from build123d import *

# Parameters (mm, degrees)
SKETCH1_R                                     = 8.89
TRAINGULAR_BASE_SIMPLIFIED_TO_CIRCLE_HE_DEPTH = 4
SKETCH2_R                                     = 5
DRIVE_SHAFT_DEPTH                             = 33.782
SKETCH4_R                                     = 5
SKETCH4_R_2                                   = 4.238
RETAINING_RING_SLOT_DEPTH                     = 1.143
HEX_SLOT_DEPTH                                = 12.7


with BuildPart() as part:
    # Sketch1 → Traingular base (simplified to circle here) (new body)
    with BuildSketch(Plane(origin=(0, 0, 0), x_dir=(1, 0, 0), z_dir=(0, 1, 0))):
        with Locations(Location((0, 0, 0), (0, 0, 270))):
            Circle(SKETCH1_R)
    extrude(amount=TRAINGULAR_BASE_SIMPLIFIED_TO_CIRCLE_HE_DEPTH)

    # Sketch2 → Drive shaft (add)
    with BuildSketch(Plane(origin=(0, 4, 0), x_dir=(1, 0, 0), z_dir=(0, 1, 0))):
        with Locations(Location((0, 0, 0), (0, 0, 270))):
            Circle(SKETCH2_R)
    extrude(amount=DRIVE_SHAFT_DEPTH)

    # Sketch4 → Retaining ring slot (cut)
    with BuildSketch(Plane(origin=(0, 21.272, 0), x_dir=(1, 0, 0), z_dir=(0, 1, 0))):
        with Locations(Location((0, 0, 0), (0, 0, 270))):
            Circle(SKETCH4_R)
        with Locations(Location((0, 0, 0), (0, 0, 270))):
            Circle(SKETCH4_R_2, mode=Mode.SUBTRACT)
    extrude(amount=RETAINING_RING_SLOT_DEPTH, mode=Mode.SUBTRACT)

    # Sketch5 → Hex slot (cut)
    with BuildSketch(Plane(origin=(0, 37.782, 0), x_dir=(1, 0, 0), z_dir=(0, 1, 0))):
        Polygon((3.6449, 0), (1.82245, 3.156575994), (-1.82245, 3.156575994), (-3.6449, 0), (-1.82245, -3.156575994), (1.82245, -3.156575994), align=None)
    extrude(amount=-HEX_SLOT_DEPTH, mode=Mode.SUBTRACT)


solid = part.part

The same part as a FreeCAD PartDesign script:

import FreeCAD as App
import Part
import Sketcher
Q = App.Units.Quantity

doc = App.newDocument("Part")
params = doc.addObject("Spreadsheet::Sheet", "Params")
for row, (alias, value) in enumerate([
    ("sketch1_diameter", "0.7 in"),
    ("pad1_length", "4 mm"),
    ("pad2_length", "1.33 in"),
    ("pocket1_length", "0.045 in"),
    ("pocket2_length", "0.5 in"),
], start=1):
    params.set(f"A{row}", alias)
    params.set(f"B{row}", "=" + value)
    params.setAlias(f"B{row}", alias)

body = doc.addObject("PartDesign::Body", "Body")

sketch1 = doc.addObject("Sketcher::SketchObject", "Sketch")
body.addObject(sketch1)
sketch1.AttachmentSupport = (doc.XZ_Plane, [""])
sketch1.MapMode = "FlatFace"
sketch1.addGeometry(Part.Circle(App.Vector(0, 0, 0), App.Vector(0, 0, 1), 9), False)
sketch1.addConstraint([
    Sketcher.Constraint("Coincident", 0, 3, -1, 1),
    Sketcher.Constraint("Diameter", 0, Q("0.7 in")),
])
sketch1.setExpression("Constraints[1]", "Params.sketch1_diameter")
pad1 = doc.addObject("PartDesign::Pad", "Pad")
body.addObject(pad1)
pad1.Profile = sketch1
pad1.setExpression("Length", "Params.pad1_length")
pad1.Reversed = True

sketch2 = doc.addObject("Sketcher::SketchObject", "Sketch001")
body.addObject(sketch2)
sketch2.AttachmentSupport = (doc.XZ_Plane, [""])
sketch2.MapMode = "FlatFace"
sketch2.AttachmentOffset = App.Placement(App.Vector(0, 0, -4), App.Rotation())
sketch2.addGeometry(Part.Circle(App.Vector(0, 0, 0), App.Vector(0, 0, 1), 5), False)
sketch2.addConstraint([
    Sketcher.Constraint("Coincident", 0, 3, -1, 1),
    Sketcher.Constraint("Diameter", 0, 10.0),
])
pad2 = doc.addObject("PartDesign::Pad", "Pad001")
body.addObject(pad2)
pad2.Profile = sketch2
pad2.setExpression("Length", "Params.pad2_length")
pad2.Reversed = True

sketch3 = doc.addObject("Sketcher::SketchObject", "Sketch002")
body.addObject(sketch3)
sketch3.AttachmentSupport = (doc.XZ_Plane, [""])
sketch3.MapMode = "FlatFace"
sketch3.AttachmentOffset = App.Placement(App.Vector(0, 0, -21.272), App.Rotation())
sketch3.addGeometry([
    Part.Circle(App.Vector(0, 0, 0), App.Vector(0, 0, 1), 5),
    Part.Circle(App.Vector(0, 0, 0), App.Vector(0, 0, 1), 4.2),
], False)
sketch3.addConstraint([
    Sketcher.Constraint("Coincident", 0, 3, -1, 1),
    Sketcher.Constraint("Coincident", 1, 3, -1, 1),
    Sketcher.Constraint("Diameter", 0, 10.0),
    Sketcher.Constraint("Diameter", 1, 8.476),
])
pocket1 = doc.addObject("PartDesign::Pocket", "Pocket")
body.addObject(pocket1)
pocket1.Profile = sketch3
pocket1.setExpression("Length", "Params.pocket1_length")

sketch4 = doc.addObject("Sketcher::SketchObject", "Sketch003")
body.addObject(sketch4)
sketch4.AttachmentSupport = (doc.XZ_Plane, [""])
sketch4.MapMode = "FlatFace"
sketch4.AttachmentOffset = App.Placement(App.Vector(0, 0, -37.782), App.Rotation())
sketch4.addGeometry([
    Part.LineSegment(App.Vector(3.6, 0, 0), App.Vector(1.8, -3.2, 0)),
    Part.LineSegment(App.Vector(1.8, -3.2, 0), App.Vector(-1.8, -3.2, 0)),
    Part.LineSegment(App.Vector(-1.8, -3.2, 0), App.Vector(-3.6, 0, 0)),
    Part.LineSegment(App.Vector(-3.6, 0, 0), App.Vector(-1.8, 3.2, 0)),
    Part.LineSegment(App.Vector(-1.8, 3.2, 0), App.Vector(1.8, 3.2, 0)),
    Part.LineSegment(App.Vector(1.8, 3.2, 0), App.Vector(3.6, 0, 0)),
], False)
sketch4.addConstraint([
    Sketcher.Constraint("Coincident", 0, 2, 1, 1),
    Sketcher.Constraint("Coincident", 1, 2, 2, 1),
    Sketcher.Constraint("Coincident", 2, 2, 3, 1),
    Sketcher.Constraint("Coincident", 3, 2, 4, 1),
    Sketcher.Constraint("Coincident", 4, 2, 5, 1),
    Sketcher.Constraint("Coincident", 5, 2, 0, 1),
    Sketcher.Constraint("Horizontal", 1),
    Sketcher.Constraint("Horizontal", 4),
    Sketcher.Constraint("Symmetric", 0, 2, 3, 2, -1, 1),
    Sketcher.Constraint("Symmetric", 2, 2, 5, 2, -1, 1),
    Sketcher.Constraint("PointOnObject", 2, 2, -1),
    Sketcher.Constraint("Parallel", 2, 5),
    Sketcher.Constraint("Vertical", 1, 2, 3, 2),
    Sketcher.Constraint("Angle", 0, Q("-120 deg")),
    Sketcher.Constraint("DistanceX", 1, 2, 1, 1, Q("0.1435 in")),
    Sketcher.Constraint("DistanceX", 2, 2, 5, 2, Q("0.287 in")),
])
pocket2 = doc.addObject("PartDesign::Pocket", "Pocket001")
body.addObject(pocket2)
pocket2.Profile = sketch4
pocket2.setExpression("Length", "Params.pocket2_length")
pocket2.Reversed = True

doc.recompute()
